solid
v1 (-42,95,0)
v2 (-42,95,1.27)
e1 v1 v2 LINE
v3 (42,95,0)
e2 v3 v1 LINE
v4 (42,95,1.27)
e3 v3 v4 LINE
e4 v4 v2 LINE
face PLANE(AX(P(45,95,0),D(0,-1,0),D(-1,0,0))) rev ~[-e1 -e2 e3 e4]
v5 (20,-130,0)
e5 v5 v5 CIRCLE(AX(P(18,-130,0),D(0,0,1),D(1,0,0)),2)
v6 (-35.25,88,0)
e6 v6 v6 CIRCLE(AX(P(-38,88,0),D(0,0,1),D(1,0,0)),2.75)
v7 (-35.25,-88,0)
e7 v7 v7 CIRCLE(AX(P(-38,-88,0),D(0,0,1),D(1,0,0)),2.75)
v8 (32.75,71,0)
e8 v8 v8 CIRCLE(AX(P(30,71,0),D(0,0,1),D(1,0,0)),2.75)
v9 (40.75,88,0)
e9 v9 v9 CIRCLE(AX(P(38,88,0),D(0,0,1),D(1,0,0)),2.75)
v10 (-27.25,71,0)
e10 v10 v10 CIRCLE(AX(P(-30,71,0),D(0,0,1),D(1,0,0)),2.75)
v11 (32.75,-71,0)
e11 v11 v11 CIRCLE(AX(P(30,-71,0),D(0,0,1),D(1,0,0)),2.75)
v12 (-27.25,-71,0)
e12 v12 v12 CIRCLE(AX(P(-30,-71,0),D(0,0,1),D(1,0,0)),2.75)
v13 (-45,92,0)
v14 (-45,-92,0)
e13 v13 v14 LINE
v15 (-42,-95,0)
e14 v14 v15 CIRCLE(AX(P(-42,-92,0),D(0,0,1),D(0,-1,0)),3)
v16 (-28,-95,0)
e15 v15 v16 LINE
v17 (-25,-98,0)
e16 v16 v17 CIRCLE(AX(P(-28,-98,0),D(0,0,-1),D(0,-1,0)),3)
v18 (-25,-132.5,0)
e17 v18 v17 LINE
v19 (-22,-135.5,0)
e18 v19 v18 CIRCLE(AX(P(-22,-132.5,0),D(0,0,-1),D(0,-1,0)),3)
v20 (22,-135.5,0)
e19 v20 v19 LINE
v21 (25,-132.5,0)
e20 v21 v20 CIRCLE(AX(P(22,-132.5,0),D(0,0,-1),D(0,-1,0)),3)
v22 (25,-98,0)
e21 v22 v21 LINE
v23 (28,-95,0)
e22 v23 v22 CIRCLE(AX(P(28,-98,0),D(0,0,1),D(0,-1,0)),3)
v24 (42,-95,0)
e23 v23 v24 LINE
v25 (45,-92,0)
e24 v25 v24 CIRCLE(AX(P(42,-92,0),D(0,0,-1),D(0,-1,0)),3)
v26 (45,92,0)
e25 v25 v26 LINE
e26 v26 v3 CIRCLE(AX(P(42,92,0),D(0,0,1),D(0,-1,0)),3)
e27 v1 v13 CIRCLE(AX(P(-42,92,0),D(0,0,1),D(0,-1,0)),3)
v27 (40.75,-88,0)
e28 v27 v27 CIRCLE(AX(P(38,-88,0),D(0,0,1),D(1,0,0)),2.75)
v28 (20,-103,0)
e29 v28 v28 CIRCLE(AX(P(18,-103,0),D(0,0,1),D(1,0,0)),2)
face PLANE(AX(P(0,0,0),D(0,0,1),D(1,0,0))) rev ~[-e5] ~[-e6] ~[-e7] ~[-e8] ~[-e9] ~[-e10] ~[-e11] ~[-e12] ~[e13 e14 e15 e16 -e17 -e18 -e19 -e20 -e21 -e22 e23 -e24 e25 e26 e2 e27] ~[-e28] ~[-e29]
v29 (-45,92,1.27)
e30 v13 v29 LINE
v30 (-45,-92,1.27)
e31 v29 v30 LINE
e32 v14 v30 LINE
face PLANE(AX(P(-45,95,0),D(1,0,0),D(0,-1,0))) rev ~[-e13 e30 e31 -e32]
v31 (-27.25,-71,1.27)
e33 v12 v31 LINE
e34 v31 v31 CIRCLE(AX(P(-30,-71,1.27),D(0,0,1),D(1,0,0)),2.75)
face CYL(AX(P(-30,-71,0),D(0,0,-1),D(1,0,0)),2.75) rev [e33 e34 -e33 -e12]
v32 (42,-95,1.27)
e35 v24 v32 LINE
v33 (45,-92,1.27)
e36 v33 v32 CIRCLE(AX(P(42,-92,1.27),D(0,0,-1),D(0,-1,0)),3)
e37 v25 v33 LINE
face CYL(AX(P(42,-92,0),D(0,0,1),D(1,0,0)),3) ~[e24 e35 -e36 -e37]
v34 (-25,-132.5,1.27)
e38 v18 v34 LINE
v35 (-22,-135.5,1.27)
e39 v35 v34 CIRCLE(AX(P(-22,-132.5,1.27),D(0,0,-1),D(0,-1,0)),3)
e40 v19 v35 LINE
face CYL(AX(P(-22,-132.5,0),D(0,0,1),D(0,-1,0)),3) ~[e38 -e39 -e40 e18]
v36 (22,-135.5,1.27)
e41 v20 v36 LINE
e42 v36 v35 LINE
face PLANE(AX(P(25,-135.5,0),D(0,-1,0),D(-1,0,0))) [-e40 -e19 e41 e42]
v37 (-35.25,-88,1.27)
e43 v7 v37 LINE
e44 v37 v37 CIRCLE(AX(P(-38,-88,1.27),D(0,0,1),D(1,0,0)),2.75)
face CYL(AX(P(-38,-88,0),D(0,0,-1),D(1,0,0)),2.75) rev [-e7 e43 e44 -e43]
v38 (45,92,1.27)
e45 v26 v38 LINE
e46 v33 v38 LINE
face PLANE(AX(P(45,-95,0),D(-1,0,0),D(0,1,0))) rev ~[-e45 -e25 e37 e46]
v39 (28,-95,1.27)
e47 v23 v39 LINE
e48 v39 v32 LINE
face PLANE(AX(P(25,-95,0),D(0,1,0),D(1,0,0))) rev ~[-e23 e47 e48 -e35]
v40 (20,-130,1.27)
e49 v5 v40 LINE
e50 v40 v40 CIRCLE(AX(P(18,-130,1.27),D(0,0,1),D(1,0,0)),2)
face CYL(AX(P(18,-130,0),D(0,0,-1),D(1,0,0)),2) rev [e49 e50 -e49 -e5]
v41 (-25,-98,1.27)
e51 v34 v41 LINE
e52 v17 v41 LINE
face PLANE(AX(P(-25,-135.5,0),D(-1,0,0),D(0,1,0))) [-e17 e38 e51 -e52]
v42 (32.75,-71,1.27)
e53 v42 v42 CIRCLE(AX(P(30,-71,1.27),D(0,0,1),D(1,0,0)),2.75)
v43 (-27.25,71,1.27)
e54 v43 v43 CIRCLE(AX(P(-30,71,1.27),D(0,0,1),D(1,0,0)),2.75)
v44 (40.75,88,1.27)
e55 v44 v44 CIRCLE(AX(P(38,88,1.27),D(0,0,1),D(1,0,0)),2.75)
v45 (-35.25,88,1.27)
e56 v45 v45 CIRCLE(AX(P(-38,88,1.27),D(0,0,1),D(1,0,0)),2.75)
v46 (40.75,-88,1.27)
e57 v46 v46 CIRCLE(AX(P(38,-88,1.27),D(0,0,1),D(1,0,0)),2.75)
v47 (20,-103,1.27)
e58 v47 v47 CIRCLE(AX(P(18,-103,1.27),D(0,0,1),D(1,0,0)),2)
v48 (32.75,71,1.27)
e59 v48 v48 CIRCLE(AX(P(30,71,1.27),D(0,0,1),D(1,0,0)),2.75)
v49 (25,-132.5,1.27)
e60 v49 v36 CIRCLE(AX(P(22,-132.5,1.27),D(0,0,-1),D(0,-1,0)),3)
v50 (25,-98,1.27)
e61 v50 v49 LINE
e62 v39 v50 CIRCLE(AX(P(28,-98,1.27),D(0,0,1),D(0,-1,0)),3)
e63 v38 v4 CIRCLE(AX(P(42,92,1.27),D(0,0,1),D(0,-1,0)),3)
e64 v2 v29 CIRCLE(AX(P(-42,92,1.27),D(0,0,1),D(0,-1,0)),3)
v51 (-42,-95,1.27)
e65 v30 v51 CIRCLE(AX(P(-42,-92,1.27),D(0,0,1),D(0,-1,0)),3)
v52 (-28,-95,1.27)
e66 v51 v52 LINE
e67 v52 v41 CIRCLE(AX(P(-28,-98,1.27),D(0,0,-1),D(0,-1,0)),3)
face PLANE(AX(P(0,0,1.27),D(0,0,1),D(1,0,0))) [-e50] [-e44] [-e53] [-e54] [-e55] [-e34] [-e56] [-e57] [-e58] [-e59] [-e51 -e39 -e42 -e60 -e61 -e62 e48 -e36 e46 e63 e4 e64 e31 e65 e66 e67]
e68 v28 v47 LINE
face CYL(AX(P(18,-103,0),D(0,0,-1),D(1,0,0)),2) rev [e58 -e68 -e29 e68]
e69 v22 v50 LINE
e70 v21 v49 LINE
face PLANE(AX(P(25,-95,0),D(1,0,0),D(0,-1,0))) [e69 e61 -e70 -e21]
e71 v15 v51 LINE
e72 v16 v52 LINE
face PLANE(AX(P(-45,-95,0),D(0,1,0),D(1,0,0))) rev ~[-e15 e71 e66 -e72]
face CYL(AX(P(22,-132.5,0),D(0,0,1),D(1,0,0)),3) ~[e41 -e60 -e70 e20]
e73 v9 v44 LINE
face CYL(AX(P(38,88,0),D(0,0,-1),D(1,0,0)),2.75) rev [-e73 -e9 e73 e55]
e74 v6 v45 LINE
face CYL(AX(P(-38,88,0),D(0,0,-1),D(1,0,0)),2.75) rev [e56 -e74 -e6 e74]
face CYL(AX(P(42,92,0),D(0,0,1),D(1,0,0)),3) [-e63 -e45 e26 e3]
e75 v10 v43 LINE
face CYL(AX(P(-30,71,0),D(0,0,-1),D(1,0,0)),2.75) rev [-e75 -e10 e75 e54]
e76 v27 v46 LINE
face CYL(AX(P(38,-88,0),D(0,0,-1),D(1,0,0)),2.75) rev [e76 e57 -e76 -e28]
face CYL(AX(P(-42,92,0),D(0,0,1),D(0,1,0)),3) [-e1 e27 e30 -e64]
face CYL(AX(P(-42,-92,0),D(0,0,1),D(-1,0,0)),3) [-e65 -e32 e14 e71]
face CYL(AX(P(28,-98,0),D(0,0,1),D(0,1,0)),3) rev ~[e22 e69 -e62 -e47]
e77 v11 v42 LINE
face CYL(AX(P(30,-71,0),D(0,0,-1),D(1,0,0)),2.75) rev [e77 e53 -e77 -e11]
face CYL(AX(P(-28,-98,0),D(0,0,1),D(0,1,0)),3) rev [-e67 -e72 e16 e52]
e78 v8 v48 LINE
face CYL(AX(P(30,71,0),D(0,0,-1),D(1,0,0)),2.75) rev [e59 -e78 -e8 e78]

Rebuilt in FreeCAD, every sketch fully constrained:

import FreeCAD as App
import Part
import Sketcher
from FreeCAD import Vector


def edges_at(feature, points):
    """Names of the edges that pass closest to the given points."""
    edges = feature.Shape.Edges
    near = lambda p: min(range(len(edges)), key=lambda i: edges[i].distToShape(Part.Vertex(*p))[0])
    return sorted({f"Edge{near(p) + 1}" for p in points})

doc = App.newDocument("Part")
params = doc.addObject("Spreadsheet::Sheet", "Params")
for row, (alias, value) in enumerate([
    ("sketch1_diameter", "4 mm"),
    ("sketch1_diameter2", "5.5 mm"),
    ("sketch1_width", "90 mm"),
    ("sketch1_width2", "50 mm"),
    ("sketch1_height", "190 mm"),
    ("pad1_length", "1.27 mm"),
    ("fillet_radius", "3 mm"),
], start=1):
    params.set(f"A{row}", alias)
    params.set(f"B{row}", "=" + value)
    params.setAlias(f"B{row}", alias)

body = doc.addObject("PartDesign::Body", "Body")

# Sketch on XY plane
sketch1 = body.newObject("Sketcher::SketchObject", "Sketch")
sketch1.AttachmentSupport = (doc.getObject("XY_Plane"), [""])
sketch1.MapMode = "FlatFace"
sketch1.addGeometry([
    Part.LineSegment(Vector(45, -95, 0), Vector(45, 95, 0)),  # 0
    Part.LineSegment(Vector(45, 95, 0), Vector(-45, 95, 0)),  # 1
    Part.LineSegment(Vector(-45, 95, 0), Vector(-45, -95, 0)),  # 2
    Part.LineSegment(Vector(-45, -95, 0), Vector(-25, -95, 0)),  # 3
    Part.LineSegment(Vector(-25, -95, 0), Vector(-25, -135.5, 0)),  # 4
    Part.LineSegment(Vector(-25, -135.5, 0), Vector(25, -135.5, 0)),  # 5
    Part.LineSegment(Vector(25, -135.5, 0), Vector(25, -95, 0)),  # 6
    Part.LineSegment(Vector(25, -95, 0), Vector(45, -95, 0)),  # 7
    Part.Circle(Vector(-38, -88, 0), Vector(0, 0, 1), 2.8),  # 8
    Part.Circle(Vector(-30, -71, 0), Vector(0, 0, 1), 2.8),  # 9
    Part.Circle(Vector(38, -88, 0), Vector(0, 0, 1), 2.8),  # 10
    Part.Circle(Vector(30, -71, 0), Vector(0, 0, 1), 2.8),  # 11
    Part.Circle(Vector(-38, 88, 0), Vector(0, 0, 1), 2.8),  # 12
    Part.Circle(Vector(-30, 71, 0), Vector(0, 0, 1), 2.8),  # 13
    Part.Circle(Vector(30, 71, 0), Vector(0, 0, 1), 2.8),  # 14
    Part.Circle(Vector(38, 88, 0), Vector(0, 0, 1), 2.8),  # 15
    Part.Circle(Vector(18, -103, 0), Vector(0, 0, 1), 2),  # 16
    Part.Circle(Vector(18, -130, 0), Vector(0, 0, 1), 2),  # 17
], False)
sketch1.addConstraint([
    Sketcher.Constraint("Coincident", 0, 2, 1, 1),
    Sketcher.Constraint("Coincident", 1, 2, 2, 1),
    Sketcher.Constraint("Coincident", 2, 2, 3, 1),
    Sketcher.Constraint("Coincident", 3, 2, 4, 1),
    Sketcher.Constraint("Coincident", 4, 2, 5, 1),
    Sketcher.Constraint("Coincident", 5, 2, 6, 1),
    Sketcher.Constraint("Coincident", 6, 2, 7, 1),
    Sketcher.Constraint("Coincident", 7, 2, 0, 1),
    Sketcher.Constraint("Vertical", 0),
    Sketcher.Constraint("Horizontal", 1),
    Sketcher.Constraint("Vertical", 2),
    Sketcher.Constraint("Horizontal", 3),
    Sketcher.Constraint("Vertical", 4),
    Sketcher.Constraint("Horizontal", 5),
    Sketcher.Constraint("Vertical", 6),
    Sketcher.Constraint("Horizontal", 7),
    Sketcher.Constraint("Equal", 8, 9),
    Sketcher.Constraint("Equal", 9, 10),
    Sketcher.Constraint("Equal", 10, 11),
    Sketcher.Constraint("Equal", 11, 12),
    Sketcher.Constraint("Equal", 12, 13),
    Sketcher.Constraint("Equal", 13, 14),
    Sketcher.Constraint("Equal", 14, 15),
    Sketcher.Constraint("Equal", 16, 17),
    Sketcher.Constraint("Symmetric", 10, 3, 12, 3, -1, 1),
    Sketcher.Constraint("Symmetric", 11, 3, 13, 3, -1, 1),
    Sketcher.Constraint("Symmetric", 9, 3, 14, 3, -1, 1),
    Sketcher.Constraint("Symmetric", 8, 3, 15, 3, -1, 1),
    Sketcher.Constraint("Symmetric", 0, 2, 2, 2, -1, 1),
    Sketcher.Constraint("Symmetric", 8, 3, 10, 3, -2),
    Sketcher.Constraint("Symmetric", 9, 3, 11, 3, -2),
    Sketcher.Constraint("Symmetric", 3, 2, 6, 2, -2),
    Sketcher.Constraint("Vertical", 16, 3, 17, 3),
    Sketcher.Constraint("Diameter", 16, 4.0),
    Sketcher.Constraint("Diameter", 8, 5.5),
    Sketcher.Constraint("DistanceX", 1, 2, 1, 1, 90.0),
    Sketcher.Constraint("DistanceX", 5, 1, 5, 2, 50.0),
    Sketcher.Constraint("DistanceY", 0, 1, 0, 2, 190.0),
    Sketcher.Constraint("DistanceX", 8, 3, 10, 3, 76.0),
    Sketcher.Constraint("DistanceX", 9, 3, 11, 3, 60.0),
    Sketcher.Constraint("DistanceY", 8, 3, 12, 3, 176.0),
    Sketcher.Constraint("DistanceY", 9, 3, 13, 3, 142.0),
    Sketcher.Constraint("DistanceY", 16, 3, 10, 3, 15.0),
    Sketcher.Constraint("DistanceX", 16, 3, 11, 3, 12.0),
    Sketcher.Constraint("DistanceY", 17, 3, 16, 3, 27.0),
    Sketcher.Constraint("DistanceY", 4, 2, 17, 3, 5.5),
])
sketch1.setExpression("Constraints[33]", "Params.sketch1_diameter")
sketch1.setExpression("Constraints[34]", "Params.sketch1_diameter2")
sketch1.setExpression("Constraints[35]", "Params.sketch1_width")
sketch1.setExpression("Constraints[36]", "Params.sketch1_width2")
sketch1.setExpression("Constraints[37]", "Params.sketch1_height")
pad1 = body.newObject("PartDesign::Pad", "Pad")
pad1.Profile = sketch1
pad1.setExpression("Length", "Params.pad1_length")
doc.recompute()

fillet = body.newObject("PartDesign::Fillet", "Fillet")
fillet.Base = (pad1, edges_at(pad1, [
    (-25, -135.5, 0.635),
    (-25, -95, 0.635),
    (-45, -95, 0.635),
    (25, -135.5, 0.635),
    (25, -95, 0.635),
    (45, -95, 0.635),
    (45, 95, 0.635),
    (-45, 95, 0.635),
]))
fillet.setExpression("Radius", "Params.fillet_radius")

doc.recompute()
